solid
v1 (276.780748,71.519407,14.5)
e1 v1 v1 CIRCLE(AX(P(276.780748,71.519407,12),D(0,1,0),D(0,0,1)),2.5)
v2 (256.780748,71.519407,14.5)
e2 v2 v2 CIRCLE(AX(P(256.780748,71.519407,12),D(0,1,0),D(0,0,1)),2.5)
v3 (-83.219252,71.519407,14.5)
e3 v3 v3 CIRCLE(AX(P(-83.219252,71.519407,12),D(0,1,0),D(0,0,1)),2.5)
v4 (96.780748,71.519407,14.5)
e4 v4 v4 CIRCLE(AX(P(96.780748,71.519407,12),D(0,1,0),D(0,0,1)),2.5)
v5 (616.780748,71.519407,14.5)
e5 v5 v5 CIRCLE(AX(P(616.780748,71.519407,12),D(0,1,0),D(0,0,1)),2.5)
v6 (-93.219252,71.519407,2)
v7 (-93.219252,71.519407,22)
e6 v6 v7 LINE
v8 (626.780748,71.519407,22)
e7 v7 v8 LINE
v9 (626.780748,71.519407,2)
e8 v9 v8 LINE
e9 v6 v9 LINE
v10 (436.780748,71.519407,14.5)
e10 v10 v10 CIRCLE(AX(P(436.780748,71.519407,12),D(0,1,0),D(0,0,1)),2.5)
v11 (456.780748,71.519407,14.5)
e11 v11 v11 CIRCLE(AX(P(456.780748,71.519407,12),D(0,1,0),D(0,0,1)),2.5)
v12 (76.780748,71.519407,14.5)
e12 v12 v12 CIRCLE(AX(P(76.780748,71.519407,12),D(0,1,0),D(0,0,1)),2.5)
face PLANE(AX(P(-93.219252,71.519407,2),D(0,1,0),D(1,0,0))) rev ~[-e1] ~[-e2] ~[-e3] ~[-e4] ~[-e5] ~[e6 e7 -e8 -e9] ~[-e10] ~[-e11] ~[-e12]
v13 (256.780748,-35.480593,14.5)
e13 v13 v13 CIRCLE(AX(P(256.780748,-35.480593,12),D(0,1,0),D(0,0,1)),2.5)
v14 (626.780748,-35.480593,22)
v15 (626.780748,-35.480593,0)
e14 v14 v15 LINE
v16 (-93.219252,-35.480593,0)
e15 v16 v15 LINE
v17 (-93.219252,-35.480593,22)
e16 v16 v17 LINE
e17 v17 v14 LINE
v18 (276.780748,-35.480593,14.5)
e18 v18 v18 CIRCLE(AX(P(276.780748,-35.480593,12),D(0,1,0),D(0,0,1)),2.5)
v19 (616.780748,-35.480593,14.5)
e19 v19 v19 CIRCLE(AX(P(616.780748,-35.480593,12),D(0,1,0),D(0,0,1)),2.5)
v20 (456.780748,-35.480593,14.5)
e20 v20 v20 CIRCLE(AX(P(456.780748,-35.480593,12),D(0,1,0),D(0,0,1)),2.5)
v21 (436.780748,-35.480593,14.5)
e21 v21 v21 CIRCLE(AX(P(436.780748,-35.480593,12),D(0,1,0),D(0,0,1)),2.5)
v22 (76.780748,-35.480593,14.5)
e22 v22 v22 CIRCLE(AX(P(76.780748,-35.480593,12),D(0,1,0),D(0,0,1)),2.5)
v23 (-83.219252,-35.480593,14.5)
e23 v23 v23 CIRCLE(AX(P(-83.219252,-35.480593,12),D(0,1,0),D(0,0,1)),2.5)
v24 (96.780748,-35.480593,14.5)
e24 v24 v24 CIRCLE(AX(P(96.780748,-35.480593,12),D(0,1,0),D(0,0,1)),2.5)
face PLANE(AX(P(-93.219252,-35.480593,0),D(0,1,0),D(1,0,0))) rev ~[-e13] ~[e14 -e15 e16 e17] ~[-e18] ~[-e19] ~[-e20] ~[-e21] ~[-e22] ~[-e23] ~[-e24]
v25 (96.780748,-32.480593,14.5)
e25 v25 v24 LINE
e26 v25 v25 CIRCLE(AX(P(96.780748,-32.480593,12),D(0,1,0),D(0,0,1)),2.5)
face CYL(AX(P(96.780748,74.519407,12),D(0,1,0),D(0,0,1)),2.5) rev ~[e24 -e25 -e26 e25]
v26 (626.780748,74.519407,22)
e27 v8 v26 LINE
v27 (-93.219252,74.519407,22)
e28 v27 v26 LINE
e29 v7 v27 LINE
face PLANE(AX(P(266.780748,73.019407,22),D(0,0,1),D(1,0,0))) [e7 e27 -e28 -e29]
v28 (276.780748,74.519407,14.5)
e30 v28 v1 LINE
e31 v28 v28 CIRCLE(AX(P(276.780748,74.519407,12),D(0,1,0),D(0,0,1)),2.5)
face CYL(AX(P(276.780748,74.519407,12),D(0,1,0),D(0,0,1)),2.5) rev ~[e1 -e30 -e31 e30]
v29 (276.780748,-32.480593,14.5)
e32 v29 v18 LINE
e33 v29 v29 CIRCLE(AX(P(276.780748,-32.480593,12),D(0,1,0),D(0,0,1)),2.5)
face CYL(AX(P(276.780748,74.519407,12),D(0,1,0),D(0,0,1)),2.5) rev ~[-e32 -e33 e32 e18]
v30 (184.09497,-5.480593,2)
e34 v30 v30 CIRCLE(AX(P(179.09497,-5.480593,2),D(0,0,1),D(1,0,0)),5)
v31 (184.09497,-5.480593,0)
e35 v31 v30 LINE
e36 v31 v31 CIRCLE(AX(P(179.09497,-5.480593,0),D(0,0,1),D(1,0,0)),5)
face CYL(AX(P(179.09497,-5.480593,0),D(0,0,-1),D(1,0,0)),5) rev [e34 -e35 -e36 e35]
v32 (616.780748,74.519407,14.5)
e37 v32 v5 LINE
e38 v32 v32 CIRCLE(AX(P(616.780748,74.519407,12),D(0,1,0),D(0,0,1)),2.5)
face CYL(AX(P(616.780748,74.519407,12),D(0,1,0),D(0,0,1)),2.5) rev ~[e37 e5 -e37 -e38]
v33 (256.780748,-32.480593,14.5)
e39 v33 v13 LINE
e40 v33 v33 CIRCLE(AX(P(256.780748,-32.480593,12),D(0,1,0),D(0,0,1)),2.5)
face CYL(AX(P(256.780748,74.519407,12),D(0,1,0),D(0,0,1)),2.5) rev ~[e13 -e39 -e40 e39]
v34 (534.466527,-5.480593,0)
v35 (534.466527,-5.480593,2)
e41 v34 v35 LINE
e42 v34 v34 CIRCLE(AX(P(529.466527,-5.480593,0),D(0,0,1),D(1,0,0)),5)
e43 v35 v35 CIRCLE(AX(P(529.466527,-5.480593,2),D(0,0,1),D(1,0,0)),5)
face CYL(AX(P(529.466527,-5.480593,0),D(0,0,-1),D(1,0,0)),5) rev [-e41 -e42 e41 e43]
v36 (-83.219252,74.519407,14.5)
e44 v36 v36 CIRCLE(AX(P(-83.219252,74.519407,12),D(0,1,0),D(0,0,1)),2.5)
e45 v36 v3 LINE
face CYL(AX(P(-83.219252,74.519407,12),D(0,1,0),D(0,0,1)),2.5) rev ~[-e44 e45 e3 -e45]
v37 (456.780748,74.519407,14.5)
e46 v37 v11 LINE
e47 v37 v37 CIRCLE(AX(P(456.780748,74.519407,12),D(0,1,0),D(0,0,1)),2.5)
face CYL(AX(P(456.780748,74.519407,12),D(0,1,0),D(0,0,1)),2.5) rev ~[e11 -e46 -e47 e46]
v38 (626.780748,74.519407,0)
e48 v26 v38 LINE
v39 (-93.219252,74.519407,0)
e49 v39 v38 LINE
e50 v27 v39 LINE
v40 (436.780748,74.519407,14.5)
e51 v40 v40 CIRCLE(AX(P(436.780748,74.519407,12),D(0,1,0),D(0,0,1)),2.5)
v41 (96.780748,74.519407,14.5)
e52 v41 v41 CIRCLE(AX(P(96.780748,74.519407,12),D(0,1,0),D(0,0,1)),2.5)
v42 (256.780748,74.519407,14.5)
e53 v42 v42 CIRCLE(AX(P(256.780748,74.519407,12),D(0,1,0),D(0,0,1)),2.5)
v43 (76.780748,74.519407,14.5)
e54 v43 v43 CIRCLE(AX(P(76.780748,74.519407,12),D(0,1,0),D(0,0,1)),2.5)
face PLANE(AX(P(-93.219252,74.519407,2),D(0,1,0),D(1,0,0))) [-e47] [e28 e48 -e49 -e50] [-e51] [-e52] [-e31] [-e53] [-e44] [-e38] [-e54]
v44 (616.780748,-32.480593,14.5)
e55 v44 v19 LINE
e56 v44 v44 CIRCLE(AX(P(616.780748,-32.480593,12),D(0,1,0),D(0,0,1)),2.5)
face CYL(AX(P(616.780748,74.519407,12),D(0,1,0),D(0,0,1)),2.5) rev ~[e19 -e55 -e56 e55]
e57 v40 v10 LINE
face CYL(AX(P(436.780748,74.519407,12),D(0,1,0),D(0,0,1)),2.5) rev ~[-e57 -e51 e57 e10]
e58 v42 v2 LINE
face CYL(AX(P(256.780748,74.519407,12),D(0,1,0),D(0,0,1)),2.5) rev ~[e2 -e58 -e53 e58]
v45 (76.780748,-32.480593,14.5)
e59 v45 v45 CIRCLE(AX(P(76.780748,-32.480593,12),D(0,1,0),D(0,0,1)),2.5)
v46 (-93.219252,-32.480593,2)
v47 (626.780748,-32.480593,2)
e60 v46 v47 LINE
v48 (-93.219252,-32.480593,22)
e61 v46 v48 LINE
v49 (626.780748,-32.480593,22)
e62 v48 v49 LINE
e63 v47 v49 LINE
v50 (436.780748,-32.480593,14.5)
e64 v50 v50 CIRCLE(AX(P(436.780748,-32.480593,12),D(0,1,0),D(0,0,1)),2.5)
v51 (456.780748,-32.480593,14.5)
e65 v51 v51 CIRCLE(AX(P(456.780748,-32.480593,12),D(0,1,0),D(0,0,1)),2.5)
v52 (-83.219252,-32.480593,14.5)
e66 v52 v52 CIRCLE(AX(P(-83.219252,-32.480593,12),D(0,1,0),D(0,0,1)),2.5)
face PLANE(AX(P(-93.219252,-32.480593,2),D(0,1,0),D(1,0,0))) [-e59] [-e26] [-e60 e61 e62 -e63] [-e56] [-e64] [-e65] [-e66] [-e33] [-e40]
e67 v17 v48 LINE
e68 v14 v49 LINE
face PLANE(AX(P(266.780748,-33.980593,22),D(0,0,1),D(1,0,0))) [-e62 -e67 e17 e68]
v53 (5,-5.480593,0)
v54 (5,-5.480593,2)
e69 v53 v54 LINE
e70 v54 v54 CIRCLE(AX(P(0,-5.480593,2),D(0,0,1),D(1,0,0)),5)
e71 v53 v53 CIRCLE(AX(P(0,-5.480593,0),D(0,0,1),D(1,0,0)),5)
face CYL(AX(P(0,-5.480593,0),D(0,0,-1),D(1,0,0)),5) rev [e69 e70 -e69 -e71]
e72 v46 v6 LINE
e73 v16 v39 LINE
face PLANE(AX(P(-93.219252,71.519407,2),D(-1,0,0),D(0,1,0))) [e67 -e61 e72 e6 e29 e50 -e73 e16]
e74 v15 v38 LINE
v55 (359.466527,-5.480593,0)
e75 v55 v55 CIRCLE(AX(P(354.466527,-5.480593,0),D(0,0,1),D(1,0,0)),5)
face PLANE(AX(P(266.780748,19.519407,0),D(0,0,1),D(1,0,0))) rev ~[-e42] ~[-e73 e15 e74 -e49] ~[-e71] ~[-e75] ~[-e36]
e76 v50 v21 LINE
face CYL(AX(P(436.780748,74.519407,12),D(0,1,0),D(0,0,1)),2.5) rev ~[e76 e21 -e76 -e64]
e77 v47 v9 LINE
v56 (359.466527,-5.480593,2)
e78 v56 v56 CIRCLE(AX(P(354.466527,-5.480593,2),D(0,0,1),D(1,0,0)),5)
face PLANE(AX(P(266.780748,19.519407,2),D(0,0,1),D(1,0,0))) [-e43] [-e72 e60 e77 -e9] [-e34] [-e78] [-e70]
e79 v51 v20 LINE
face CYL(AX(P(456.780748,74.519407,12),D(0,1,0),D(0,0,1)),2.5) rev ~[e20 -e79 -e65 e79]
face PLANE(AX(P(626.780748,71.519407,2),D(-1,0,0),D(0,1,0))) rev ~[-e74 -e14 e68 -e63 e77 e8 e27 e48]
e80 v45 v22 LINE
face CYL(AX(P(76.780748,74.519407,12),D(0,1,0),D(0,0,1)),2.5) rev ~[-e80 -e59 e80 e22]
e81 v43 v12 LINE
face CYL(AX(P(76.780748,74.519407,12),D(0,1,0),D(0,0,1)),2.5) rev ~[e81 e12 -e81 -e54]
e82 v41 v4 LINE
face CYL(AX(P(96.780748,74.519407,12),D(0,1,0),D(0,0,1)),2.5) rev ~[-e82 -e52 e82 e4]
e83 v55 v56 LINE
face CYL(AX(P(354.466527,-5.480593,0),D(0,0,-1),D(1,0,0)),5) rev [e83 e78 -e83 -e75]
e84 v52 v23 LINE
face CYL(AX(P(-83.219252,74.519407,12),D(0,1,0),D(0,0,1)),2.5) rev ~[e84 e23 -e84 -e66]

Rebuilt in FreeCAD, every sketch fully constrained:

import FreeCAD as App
import Part
import Sketcher
from FreeCAD import Vector

doc = App.newDocument("Part")
body = doc.addObject("PartDesign::Body", "Body")

sketch1 = body.newObject("Sketcher::SketchObject", "Sketch")
sketch1.AttachmentSupport = (doc.getObject("XY_Plane"), [""])
sketch1.MapMode = "FlatFace"
sketch1.addGeometry([
    Part.LineSegment(Vector(-93.219252, 74.519407, 0), Vector(-93.219252, -35.480593, 0)),
    Part.LineSegment(Vector(-93.219252, -35.480593, 0), Vector(626.780748, -35.480593, 0)),
    Part.LineSegment(Vector(626.780748, -35.480593, 0), Vector(626.780748, 74.519407, 0)),
    Part.LineSegment(Vector(626.780748, 74.519407, 0), Vector(-93.219252, 74.519407, 0)),
    Part.Circle(Vector(0, -5.480593, 0), Vector(0, 0, 1), 5),
    Part.Circle(Vector(179.09497, -5.480593, 0), Vector(0, 0, 1), 5),
    Part.Circle(Vector(354.466527, -5.480593, 0), Vector(0, 0, 1), 5),
    Part.Circle(Vector(529.466527, -5.480593, 0), Vector(0, 0, 1), 5),
], False)
sketch1.addConstraint([
    Sketcher.Constraint("Coincident", 0, 2, 1, 1),
    Sketcher.Constraint("Coincident", 1, 2, 2, 1),
    Sketcher.Constraint("Coincident", 2, 2, 3, 1),
    Sketcher.Constraint("Coincident", 3, 2, 0, 1),
    Sketcher.Constraint("Vertical", 0),
    Sketcher.Constraint("Horizontal", 1),
    Sketcher.Constraint("Vertical", 2),
    Sketcher.Constraint("Horizontal", 3),
    Sketcher.Constraint("Equal", 4, 5),
    Sketcher.Constraint("Equal", 5, 6),
    Sketcher.Constraint("Equal", 6, 7),
    Sketcher.Constraint("PointOnObject", 4, 3, -2),
    Sketcher.Constraint("Horizontal", 4, 3, 5, 3),
    Sketcher.Constraint("Horizontal", 5, 3, 6, 3),
    Sketcher.Constraint("Horizontal", 6, 3, 7, 3),
    Sketcher.Constraint("Diameter", 4, 10.0),
    Sketcher.Constraint("DistanceX", 1, 1, 1, 2, 720.0),
    Sketcher.Constraint("DistanceY", 0, 2, 0, 1, 110.0),
    Sketcher.Constraint("DistanceX", 6, 3, 7, 3, 175.0),
    Sketcher.Constraint("DistanceY", 0, 2, 4, 3, 30.0),
    Sketcher.Constraint("DistanceX", -1, 1, 5, 3, 179.09497),
    Sketcher.Constraint("DistanceX", 0, 2, -1, 1, 93.219252),
    Sketcher.Constraint("DistanceX", 0, 2, 6, 3, 447.685778),
    Sketcher.Constraint("DistanceY", 4, 3, -1, 1, 5.480593),
])
pad1 = body.newObject("PartDesign::Pad", "Pad")
pad1.Profile = sketch1
pad1.Length = 2

sketch2 = body.newObject("Sketcher::SketchObject", "Sketch001")
sketch2.AttachmentSupport = (doc.getObject("XY_Plane"), [""])
sketch2.MapMode = "FlatFace"
sketch2.AttachmentOffset = App.Placement(Vector(0, 0, 2), App.Rotation())
sketch2.addGeometry([
    Part.LineSegment(Vector(-93.219252, 74.519407, 0), Vector(-93.219252, 71.519407, 0)),
    Part.LineSegment(Vector(-93.219252, 71.519407, 0), Vector(626.780748, 71.519407, 0)),
    Part.LineSegment(Vector(626.780748, 71.519407, 0), Vector(626.780748, 74.519407, 0)),
    Part.LineSegment(Vector(626.780748, 74.519407, 0), Vector(-93.219252, 74.519407, 0)),
    Part.LineSegment(Vector(-93.219252, -32.480593, 0), Vector(-93.219252, -35.480593, 0)),
    Part.LineSegment(Vector(-93.219252, -35.480593, 0), Vector(626.780748, -35.480593, 0)),
    Part.LineSegment(Vector(626.780748, -35.480593, 0), Vector(626.780748, -32.480593, 0)),
    Part.LineSegment(Vector(626.780748, -32.480593, 0), Vector(-93.219252, -32.480593, 0)),
], False)
sketch2.addConstraint([
    Sketcher.Constraint("Coincident", 0, 2, 1, 1),
    Sketcher.Constraint("Coincident", 1, 2, 2, 1),
    Sketcher.Constraint("Coincident", 2, 2, 3, 1),
    Sketcher.Constraint("Coincident", 3, 2, 0, 1),
    Sketcher.Constraint("Coincident", 4, 2, 5, 1),
    Sketcher.Constraint("Coincident", 5, 2, 6, 1),
    Sketcher.Constraint("Coincident", 6, 2, 7, 1),
    Sketcher.Constraint("Coincident", 7, 2, 4, 1),
    Sketcher.Constraint("Vertical", 0),
    Sketcher.Constraint("Horizontal", 1),
    Sketcher.Constraint("Vertical", 2),
    Sketcher.Constraint("Horizontal", 3),
    Sketcher.Constraint("Vertical", 4),
    Sketcher.Constraint("Horizontal", 5),
    Sketcher.Constraint("Vertical", 6),
    Sketcher.Constraint("Horizontal", 7),
    Sketcher.Constraint("Vertical", 3, 2, 4, 2),
    Sketcher.Constraint("Vertical", 2, 2, 5, 2),
    Sketcher.Constraint("Equal", 2, 4),
    Sketcher.Constraint("DistanceX", 1, 1, 1, 2, 720.0),
    Sketcher.Constraint("DistanceY", 0, 2, 0, 1, 3.0),
    Sketcher.Constraint("DistanceY", 4, 2, 0, 2, 107.0),
    Sketcher.Constraint("DistanceX", 0, 2, -1, 1, 93.219252),
    Sketcher.Constraint("DistanceY", -1, 1, 0, 2, 71.519407),
])
pad2 = body.newObject("PartDesign::Pad", "Pad001")
pad2.Profile = sketch2
pad2.Length = 20

sketch3 = body.newObject("Sketcher::SketchObject", "Sketch002")
sketch3.AttachmentSupport = (doc.getObject("XZ_Plane"), [""])
sketch3.MapMode = "FlatFace"
sketch3.AttachmentOffset = App.Placement(Vector(0, 0, -74.519407), App.Rotation())
sketch3.addGeometry([
    Part.Circle(Vector(456.780748, 12, 0), Vector(0, 0, 1), 2.5),
    Part.Circle(Vector(616.780748, 12, 0), Vector(0, 0, 1), 2.5),
    Part.Circle(Vector(436.780748, 12, 0), Vector(0, 0, 1), 2.5),
    Part.Circle(Vector(276.780748, 12, 0), Vector(0, 0, 1), 2.5),
    Part.Circle(Vector(256.780748, 12, 0), Vector(0, 0, 1), 2.5),
    Part.Circle(Vector(96.780748, 12, 0), Vector(0, 0, 1), 2.5),
    Part.Circle(Vector(76.780748, 12, 0), Vector(0, 0, 1), 2.5),
    Part.Circle(Vector(-83.219252, 12, 0), Vector(0, 0, 1), 2.5),
], False)
sketch3.addConstraint([
    Sketcher.Constraint("Equal", 0, 1),
    Sketcher.Constraint("Equal", 1, 2),
    Sketcher.Constraint("Equal", 2, 3),
    Sketcher.Constraint("Equal", 3, 4),
    Sketcher.Constraint("Equal", 4, 5),
    Sketcher.Constraint("Equal", 5, 6),
    Sketcher.Constraint("Equal", 6, 7),
    Sketcher.Constraint("Horizontal", 0, 3, 1, 3),
    Sketcher.Constraint("Horizontal", 1, 3, 2, 3),
    Sketcher.Constraint("Horizontal", 2, 3, 3, 3),
    Sketcher.Constraint("Horizontal", 3, 3, 4, 3),
    Sketcher.Constraint("Horizontal", 4, 3, 5, 3),
    Sketcher.Constraint("Horizontal", 5, 3, 6, 3),
    Sketcher.Constraint("Horizontal", 6, 3, 7, 3),
    Sketcher.Constraint("Diameter", 0, 5.0),
    Sketcher.Constraint("DistanceY", -1, 1, 0, 3, 12.0),
    Sketcher.Constraint("DistanceX", 0, 3, 1, 3, 160.0),
    Sketcher.Constraint("DistanceX", 2, 3, 0, 3, 20.0),
    Sketcher.Constraint("DistanceX", 3, 3, 2, 3, 160.0),
    Sketcher.Constraint("DistanceX", 4, 3, 3, 3, 20.0),
    Sketcher.Constraint("DistanceX", 5, 3, 4, 3, 160.0),
    Sketcher.Constraint("DistanceX", 6, 3, 5, 3, 20.0),
    Sketcher.Constraint("DistanceX", 7, 3, 6, 3, 160.0),
    Sketcher.Constraint("DistanceX", -1, 1, 0, 3, 456.780748),
])
pocket1 = body.newObject("PartDesign::Pocket", "Pocket")
pocket1.Profile = sketch3
pocket1.Length = 114
pocket1.Reversed = True

doc.recompute()
